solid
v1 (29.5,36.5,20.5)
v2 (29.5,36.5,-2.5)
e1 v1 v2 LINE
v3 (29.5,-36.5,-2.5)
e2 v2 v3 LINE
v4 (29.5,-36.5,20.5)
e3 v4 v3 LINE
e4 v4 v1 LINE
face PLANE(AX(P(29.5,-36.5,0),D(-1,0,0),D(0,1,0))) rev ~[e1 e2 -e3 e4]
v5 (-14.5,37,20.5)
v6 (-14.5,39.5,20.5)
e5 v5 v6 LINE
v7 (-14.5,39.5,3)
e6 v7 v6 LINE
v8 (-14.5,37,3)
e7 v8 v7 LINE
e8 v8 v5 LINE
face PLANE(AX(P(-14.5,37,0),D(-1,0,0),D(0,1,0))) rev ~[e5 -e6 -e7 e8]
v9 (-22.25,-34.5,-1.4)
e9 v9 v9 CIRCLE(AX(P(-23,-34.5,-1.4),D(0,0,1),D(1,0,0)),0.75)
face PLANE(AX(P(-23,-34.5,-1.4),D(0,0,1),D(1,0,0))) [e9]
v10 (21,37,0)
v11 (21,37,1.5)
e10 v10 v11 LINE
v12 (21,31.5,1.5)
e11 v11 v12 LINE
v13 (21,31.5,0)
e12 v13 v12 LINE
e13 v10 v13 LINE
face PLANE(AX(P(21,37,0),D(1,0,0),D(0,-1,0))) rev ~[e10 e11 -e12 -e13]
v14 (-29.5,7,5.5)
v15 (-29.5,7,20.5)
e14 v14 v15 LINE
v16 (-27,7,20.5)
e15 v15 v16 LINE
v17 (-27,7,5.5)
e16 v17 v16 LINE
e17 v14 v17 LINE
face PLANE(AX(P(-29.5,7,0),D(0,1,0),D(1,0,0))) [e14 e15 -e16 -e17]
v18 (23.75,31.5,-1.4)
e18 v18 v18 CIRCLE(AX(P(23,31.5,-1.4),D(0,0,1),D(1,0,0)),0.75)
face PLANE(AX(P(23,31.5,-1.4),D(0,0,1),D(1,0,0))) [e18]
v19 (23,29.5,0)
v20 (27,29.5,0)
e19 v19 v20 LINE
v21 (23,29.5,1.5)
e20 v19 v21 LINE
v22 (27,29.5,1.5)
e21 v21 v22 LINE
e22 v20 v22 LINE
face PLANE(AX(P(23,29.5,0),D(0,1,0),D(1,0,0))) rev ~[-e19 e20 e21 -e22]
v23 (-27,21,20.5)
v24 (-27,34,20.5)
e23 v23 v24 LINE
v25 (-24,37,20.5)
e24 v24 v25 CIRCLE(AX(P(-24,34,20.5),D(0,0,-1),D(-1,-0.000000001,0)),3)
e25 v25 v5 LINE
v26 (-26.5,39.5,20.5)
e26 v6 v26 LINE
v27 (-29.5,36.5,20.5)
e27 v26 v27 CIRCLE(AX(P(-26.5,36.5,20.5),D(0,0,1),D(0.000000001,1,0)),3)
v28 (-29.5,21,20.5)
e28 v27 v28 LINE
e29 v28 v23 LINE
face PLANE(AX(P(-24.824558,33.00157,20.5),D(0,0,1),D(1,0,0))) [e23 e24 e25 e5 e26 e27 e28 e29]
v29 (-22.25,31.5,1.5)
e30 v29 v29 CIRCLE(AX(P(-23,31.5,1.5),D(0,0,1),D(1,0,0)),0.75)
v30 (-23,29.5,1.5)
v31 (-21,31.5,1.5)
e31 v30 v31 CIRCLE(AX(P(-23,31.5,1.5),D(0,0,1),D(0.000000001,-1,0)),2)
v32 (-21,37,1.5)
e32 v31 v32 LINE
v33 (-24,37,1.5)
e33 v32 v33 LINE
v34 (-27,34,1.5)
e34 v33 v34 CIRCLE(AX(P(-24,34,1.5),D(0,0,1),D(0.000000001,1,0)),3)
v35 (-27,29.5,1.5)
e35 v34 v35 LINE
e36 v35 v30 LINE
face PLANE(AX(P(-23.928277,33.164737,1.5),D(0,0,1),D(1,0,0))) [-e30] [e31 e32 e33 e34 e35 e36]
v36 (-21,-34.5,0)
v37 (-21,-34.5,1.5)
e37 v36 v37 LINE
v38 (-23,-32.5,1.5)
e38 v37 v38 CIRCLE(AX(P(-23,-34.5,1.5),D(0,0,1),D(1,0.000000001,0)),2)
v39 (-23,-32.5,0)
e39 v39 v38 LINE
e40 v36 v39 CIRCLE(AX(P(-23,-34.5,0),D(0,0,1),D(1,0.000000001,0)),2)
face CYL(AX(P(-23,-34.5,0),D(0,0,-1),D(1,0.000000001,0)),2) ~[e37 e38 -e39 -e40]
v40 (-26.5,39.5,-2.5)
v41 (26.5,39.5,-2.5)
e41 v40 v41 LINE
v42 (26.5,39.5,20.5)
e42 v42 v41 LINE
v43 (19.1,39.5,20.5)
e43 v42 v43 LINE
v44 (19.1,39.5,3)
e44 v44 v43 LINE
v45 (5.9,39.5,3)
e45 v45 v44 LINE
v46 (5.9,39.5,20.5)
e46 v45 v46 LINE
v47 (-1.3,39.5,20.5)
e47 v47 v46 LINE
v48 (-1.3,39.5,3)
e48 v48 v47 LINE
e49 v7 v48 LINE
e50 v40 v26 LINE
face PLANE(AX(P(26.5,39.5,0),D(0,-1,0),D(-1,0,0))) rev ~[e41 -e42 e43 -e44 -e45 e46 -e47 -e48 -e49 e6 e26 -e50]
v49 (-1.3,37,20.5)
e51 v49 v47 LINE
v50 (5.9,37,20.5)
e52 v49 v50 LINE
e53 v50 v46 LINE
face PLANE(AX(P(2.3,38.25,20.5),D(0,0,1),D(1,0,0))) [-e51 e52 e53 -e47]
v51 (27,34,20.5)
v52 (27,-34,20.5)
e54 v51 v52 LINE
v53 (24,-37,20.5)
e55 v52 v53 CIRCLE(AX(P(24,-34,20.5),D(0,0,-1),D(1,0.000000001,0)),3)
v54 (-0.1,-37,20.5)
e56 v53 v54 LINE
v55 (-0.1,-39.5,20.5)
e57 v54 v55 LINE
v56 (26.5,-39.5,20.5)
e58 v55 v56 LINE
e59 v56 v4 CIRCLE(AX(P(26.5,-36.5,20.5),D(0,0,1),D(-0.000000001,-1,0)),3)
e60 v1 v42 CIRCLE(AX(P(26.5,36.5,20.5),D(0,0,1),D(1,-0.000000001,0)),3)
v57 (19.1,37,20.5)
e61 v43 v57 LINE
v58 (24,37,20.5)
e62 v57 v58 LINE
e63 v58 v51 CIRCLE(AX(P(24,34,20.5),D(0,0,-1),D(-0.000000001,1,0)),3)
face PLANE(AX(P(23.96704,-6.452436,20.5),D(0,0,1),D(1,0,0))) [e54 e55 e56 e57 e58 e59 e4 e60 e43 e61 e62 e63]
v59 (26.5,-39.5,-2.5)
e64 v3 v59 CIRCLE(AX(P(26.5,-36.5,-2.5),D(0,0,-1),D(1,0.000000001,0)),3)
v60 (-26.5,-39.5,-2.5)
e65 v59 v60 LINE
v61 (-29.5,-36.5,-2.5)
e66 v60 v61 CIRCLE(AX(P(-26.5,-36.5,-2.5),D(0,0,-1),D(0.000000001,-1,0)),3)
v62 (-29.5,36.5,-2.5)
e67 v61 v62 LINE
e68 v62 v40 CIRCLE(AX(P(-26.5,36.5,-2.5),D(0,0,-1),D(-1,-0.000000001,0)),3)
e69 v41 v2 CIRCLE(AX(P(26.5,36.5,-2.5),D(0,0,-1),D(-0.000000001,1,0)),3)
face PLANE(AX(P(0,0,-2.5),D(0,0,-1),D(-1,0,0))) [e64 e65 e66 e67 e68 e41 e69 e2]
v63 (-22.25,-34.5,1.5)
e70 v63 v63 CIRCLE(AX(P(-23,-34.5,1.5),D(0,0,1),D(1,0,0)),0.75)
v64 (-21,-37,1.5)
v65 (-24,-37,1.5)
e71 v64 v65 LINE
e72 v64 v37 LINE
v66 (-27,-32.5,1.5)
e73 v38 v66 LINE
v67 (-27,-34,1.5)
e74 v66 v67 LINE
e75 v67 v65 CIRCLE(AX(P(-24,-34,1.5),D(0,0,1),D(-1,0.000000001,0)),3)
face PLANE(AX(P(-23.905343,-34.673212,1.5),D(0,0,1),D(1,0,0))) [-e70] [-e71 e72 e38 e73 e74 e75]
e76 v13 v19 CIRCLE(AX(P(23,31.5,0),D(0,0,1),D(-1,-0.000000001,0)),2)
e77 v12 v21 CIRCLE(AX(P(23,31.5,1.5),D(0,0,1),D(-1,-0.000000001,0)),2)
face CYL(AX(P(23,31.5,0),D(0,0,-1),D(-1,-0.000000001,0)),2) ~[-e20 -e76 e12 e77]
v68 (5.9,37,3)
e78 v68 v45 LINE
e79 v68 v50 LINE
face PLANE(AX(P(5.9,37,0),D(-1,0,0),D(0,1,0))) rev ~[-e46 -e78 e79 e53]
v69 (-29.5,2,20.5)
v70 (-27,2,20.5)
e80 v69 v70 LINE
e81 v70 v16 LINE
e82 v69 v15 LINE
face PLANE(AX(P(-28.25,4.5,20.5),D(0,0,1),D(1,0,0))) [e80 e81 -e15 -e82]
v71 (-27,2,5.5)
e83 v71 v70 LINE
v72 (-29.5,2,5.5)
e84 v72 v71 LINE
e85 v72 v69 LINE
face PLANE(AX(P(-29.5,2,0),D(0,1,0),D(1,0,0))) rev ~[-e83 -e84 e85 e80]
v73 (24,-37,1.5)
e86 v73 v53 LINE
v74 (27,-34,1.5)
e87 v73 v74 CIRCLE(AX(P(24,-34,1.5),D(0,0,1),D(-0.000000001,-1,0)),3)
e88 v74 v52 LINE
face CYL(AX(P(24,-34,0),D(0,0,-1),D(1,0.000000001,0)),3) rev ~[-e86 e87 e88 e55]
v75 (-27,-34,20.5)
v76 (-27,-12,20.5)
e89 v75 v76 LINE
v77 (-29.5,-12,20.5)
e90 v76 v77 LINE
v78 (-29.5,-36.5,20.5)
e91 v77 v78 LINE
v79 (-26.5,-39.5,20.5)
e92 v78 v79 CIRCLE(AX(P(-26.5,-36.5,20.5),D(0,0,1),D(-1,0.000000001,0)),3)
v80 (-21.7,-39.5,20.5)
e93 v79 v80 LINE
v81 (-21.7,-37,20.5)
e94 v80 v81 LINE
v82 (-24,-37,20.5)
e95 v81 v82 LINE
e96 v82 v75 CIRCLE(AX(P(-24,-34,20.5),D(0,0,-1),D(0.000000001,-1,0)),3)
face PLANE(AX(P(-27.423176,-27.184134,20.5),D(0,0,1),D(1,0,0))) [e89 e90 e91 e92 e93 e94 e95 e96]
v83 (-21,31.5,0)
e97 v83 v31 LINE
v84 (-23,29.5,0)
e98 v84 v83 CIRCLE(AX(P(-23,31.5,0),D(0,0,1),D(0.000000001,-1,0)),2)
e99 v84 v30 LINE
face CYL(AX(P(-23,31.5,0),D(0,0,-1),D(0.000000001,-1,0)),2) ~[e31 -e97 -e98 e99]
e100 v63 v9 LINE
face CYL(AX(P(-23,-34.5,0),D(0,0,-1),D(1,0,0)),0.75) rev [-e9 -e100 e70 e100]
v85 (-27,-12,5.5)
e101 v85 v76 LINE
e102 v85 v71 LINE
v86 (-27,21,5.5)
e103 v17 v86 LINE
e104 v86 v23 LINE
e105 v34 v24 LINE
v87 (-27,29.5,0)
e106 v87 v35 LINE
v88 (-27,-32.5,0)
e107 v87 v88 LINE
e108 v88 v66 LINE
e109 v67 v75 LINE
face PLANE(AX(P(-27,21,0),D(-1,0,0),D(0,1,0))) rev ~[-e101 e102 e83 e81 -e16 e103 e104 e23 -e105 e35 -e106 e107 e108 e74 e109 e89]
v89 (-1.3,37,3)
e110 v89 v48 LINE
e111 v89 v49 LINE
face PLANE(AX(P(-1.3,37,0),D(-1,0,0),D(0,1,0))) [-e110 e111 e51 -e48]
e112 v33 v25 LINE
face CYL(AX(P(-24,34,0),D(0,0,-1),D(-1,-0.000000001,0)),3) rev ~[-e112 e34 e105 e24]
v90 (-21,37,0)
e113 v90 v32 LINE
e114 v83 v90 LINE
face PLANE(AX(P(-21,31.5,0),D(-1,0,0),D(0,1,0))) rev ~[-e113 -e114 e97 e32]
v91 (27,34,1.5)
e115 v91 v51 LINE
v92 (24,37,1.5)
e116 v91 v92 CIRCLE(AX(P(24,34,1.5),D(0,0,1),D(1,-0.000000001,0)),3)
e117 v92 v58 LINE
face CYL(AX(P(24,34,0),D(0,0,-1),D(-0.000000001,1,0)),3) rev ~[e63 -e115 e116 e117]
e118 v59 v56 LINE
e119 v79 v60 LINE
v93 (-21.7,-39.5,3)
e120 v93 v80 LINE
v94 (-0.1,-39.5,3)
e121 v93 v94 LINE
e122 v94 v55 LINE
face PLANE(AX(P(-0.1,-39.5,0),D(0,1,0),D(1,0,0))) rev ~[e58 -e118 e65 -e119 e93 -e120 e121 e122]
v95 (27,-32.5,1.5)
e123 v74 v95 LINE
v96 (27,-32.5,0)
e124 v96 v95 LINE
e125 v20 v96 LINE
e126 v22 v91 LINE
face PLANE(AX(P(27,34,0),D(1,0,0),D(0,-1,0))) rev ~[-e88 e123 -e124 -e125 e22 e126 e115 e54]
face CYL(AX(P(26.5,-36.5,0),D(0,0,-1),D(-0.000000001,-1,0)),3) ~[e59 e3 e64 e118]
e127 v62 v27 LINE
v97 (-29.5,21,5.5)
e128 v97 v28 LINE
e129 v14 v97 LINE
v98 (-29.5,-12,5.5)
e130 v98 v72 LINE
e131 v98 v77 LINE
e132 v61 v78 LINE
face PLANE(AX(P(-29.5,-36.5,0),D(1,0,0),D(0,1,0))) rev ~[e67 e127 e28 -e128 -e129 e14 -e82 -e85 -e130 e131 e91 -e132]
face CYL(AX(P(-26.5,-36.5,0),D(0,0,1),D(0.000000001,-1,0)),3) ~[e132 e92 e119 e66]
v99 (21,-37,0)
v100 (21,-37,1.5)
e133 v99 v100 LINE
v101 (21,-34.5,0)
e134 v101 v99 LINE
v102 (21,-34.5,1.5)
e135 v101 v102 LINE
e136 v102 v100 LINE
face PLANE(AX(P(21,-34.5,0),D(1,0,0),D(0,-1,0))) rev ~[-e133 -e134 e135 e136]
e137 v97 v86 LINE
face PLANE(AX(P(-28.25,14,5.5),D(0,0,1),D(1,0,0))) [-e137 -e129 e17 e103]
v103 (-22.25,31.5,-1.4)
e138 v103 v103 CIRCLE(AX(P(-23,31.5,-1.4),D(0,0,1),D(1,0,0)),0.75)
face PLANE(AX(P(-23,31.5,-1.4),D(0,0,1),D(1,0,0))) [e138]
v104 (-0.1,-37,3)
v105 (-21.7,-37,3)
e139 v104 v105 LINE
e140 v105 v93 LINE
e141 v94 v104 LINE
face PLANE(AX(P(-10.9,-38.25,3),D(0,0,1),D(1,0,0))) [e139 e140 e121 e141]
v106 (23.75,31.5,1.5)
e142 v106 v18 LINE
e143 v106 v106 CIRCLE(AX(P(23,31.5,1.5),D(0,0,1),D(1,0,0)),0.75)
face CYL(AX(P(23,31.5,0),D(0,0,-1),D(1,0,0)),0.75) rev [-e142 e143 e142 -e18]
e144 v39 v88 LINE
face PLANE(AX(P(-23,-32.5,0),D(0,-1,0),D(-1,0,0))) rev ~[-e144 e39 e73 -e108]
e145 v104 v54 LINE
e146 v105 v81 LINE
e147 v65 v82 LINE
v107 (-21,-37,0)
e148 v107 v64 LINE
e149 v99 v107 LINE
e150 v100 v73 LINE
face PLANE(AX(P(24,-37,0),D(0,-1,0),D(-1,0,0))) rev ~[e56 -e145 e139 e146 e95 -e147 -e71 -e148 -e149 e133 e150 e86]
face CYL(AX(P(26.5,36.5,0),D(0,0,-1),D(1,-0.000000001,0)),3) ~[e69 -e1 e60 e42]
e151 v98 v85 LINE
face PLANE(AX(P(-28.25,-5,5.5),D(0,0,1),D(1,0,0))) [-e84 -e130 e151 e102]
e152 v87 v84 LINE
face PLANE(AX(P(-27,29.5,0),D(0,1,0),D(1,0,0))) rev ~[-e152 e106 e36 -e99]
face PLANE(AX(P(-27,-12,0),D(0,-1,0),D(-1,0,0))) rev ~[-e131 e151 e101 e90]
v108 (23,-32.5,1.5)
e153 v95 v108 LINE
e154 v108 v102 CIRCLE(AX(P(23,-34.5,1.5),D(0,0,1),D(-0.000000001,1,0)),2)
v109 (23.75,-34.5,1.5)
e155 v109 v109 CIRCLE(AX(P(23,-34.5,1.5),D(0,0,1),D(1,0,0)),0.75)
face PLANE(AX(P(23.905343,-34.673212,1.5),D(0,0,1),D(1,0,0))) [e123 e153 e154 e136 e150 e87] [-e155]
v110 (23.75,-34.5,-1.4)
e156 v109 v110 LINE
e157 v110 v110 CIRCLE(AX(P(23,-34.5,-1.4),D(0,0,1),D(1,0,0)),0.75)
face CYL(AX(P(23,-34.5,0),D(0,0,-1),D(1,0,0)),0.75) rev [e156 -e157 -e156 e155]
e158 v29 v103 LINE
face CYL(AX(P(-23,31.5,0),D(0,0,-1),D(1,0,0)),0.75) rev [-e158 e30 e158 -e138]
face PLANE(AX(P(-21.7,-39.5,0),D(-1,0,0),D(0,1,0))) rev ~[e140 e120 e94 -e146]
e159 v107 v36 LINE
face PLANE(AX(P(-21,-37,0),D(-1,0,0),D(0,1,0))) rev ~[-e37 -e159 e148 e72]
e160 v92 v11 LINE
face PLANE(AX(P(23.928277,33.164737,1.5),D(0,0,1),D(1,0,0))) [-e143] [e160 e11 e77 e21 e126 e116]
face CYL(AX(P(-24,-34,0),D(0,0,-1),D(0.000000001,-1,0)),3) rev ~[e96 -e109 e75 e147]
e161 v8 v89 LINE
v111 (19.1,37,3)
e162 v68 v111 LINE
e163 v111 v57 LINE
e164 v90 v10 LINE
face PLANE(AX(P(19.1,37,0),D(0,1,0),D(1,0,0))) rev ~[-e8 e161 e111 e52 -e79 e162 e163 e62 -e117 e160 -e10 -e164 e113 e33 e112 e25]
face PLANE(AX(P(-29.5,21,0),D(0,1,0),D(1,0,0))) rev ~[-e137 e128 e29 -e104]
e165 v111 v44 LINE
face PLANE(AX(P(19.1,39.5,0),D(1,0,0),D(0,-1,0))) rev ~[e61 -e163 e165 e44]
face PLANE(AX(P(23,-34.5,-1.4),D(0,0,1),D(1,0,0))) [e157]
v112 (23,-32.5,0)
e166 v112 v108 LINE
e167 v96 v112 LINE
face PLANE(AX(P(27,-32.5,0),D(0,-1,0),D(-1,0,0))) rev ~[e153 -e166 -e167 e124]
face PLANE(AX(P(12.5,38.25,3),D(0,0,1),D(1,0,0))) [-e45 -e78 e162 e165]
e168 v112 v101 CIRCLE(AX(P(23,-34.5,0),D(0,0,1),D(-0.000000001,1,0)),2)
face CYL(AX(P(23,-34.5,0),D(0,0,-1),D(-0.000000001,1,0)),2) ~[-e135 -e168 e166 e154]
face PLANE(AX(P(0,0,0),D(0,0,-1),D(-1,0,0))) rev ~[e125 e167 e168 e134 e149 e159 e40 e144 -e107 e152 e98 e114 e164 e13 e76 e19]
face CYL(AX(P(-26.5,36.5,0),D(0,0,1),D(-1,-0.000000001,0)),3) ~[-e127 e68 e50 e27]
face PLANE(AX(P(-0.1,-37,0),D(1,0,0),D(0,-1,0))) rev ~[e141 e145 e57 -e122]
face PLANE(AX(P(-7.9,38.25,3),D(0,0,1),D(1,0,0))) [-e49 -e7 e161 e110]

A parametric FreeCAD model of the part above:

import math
import FreeCAD as App
import Part
import Sketcher
from FreeCAD import Vector
Q = App.Units.Quantity

doc = App.newDocument("Part")
body = doc.addObject("PartDesign::Body", "Body")

# Sketch on XY plane
sketch1 = body.newObject("Sketcher::SketchObject", "Sketch")
sketch1.AttachmentSupport = (doc.getObject("XY_Plane"), [""])
sketch1.MapMode = "FlatFace"
sketch1.addGeometry(Part.LineSegment(Vector(26.5, 39.5, 0), Vector(-26.5, 39.5, 0)), False)
sketch1.addGeometry(Part.ArcOfCircle(Part.Circle(Vector(-26.5, 36.5, 0), Vector(0, 0, 1), 3), math.radians(90), math.radians(180)), False)
sketch1.addGeometry(Part.LineSegment(Vector(-29.5, 36.5, 0), Vector(-29.5, -36.5, 0)), False)
sketch1.addGeometry(Part.ArcOfCircle(Part.Circle(Vector(-26.5, -36.5, 0), Vector(0, 0, 1), 3), math.radians(180), math.radians(270)), False)
sketch1.addGeometry(Part.LineSegment(Vector(-26.5, -39.5, 0), Vector(26.5, -39.5, 0)), False)
sketch1.addGeometry(Part.ArcOfCircle(Part.Circle(Vector(26.5, -36.5, 0), Vector(0, 0, 1), 3), math.radians(-90), math.radians(0)), False)
sketch1.addGeometry(Part.LineSegment(Vector(29.5, -36.5, 0), Vector(29.5, 36.5, 0)), False)
sketch1.addGeometry(Part.ArcOfCircle(Part.Circle(Vector(26.5, 36.5, 0), Vector(0, 0, 1), 3), math.radians(0), math.radians(90)), False)
sketch1.addConstraint(Sketcher.Constraint("Tangent", 0, 2, 1, 1))
sketch1.addConstraint(Sketcher.Constraint("Tangent", 1, 2, 2, 1))
sketch1.addConstraint(Sketcher.Constraint("Tangent", 2, 2, 3, 1))
sketch1.addConstraint(Sketcher.Constraint("Tangent", 3, 2, 4, 1))
sketch1.addConstraint(Sketcher.Constraint("Tangent", 4, 2, 5, 1))
sketch1.addConstraint(Sketcher.Constraint("Tangent", 5, 2, 6, 1))
sketch1.addConstraint(Sketcher.Constraint("Tangent", 6, 2, 7, 1))
sketch1.addConstraint(Sketcher.Constraint("Tangent", 7, 2, 0, 1))
sketch1.addConstraint(Sketcher.Constraint("Horizontal", 0))
sketch1.addConstraint(Sketcher.Constraint("Vertical", 2))
sketch1.addConstraint(Sketcher.Constraint("Horizontal", 4))
sketch1.addConstraint(Sketcher.Constraint("Vertical", 6))
sketch1.addConstraint(Sketcher.Constraint("Equal", 1, 3))
sketch1.addConstraint(Sketcher.Constraint("Equal", 3, 5))
sketch1.addConstraint(Sketcher.Constraint("Equal", 5, 7))
sketch1.addConstraint(Sketcher.Constraint("Symmetric", 1, 3, 5, 3, -1, 1))
sketch1.addConstraint(Sketcher.Constraint("Radius", 1, Q("3 mm")))
sketch1.addConstraint(Sketcher.Constraint("DistanceX", 0, 2, 0, 1, Q("53 mm")))
sketch1.addConstraint(Sketcher.Constraint("DistanceY", 2, 2, 2, 1, Q("73 mm")))
pad1 = body.newObject("PartDesign::Pad", "Pad")
pad1.Profile = sketch1
pad1.Length = 2.5
pad1.Reversed = True

# Sketch on XY plane
sketch2 = body.newObject("Sketcher::SketchObject", "Sketch001")
sketch2.AttachmentSupport = (doc.getObject("XY_Plane"), [""])
sketch2.MapMode = "FlatFace"
sketch2.addGeometry(Part.LineSegment(Vector(-21, 31.5, 0), Vector(-21, 37, 0)), False)
sketch2.addGeometry(Part.LineSegment(Vector(-21, 37, 0), Vector(-24, 37, 0)), False)
sketch2.addGeometry(Part.ArcOfCircle(Part.Circle(Vector(-24, 34, 0), Vector(0, 0, 1), 3), math.radians(90), math.radians(180)), False)
sketch2.addGeometry(Part.LineSegment(Vector(-27, 34, 0), Vector(-27, 29.5, 0)), False)
sketch2.addGeometry(Part.LineSegment(Vector(-27, 29.5, 0), Vector(-23, 29.5, 0)), False)
sketch2.addGeometry(Part.ArcOfCircle(Part.Circle(Vector(-23, 31.5, 0), Vector(0, 0, 1), 2), math.radians(-90), math.radians(0)), False)
sketch2.addGeometry(Part.Circle(Vector(-23, 31.5, 0), Vector(0, 0, 1), 0.75), False)
sketch2.addGeometry(Part.LineSegment(Vector(27, -34, 0), Vector(27, -32.5, 0)), False)
sketch2.addGeometry(Part.LineSegment(Vector(27, -32.5, 0), Vector(23, -32.5, 0)), False)
sketch2.addGeometry(Part.ArcOfCircle(Part.Circle(Vector(23, -34.5, 0), Vector(0, 0, 1), 2), math.radians(90), math.radians(180)), False)
sketch2.addGeometry(Part.LineSegment(Vector(21, -34.5, 0), Vector(21, -37, 0)), False)
sketch2.addGeometry(Part.LineSegment(Vector(21, -37, 0), Vector(24, -37, 0)), False)
sketch2.addGeometry(Part.ArcOfCircle(Part.Circle(Vector(24, -34, 0), Vector(0, 0, 1), 3), math.radians(-90), math.radians(0)), False)
sketch2.addGeometry(Part.Circle(Vector(23, -34.5, 0), Vector(0, 0, 1), 0.75), False)
sketch2.addGeometry(Part.LineSegment(Vector(-23, -32.5, 0), Vector(-27, -32.5, 0)), False)
sketch2.addGeometry(Part.LineSegment(Vector(-27, -32.5, 0), Vector(-27, -34, 0)), False)
sketch2.addGeometry(Part.ArcOfCircle(Part.Circle(Vector(-24, -34, 0), Vector(0, 0, 1), 3), math.radians(180), math.radians(270)), False)
sketch2.addGeometry(Part.LineSegment(Vector(-24, -37, 0), Vector(-21, -37, 0)), False)
sketch2.addGeometry(Part.LineSegment(Vector(-21, -37, 0), Vector(-21, -34.5, 0)), False)
sketch2.addGeometry(Part.ArcOfCircle(Part.Circle(Vector(-23, -34.5, 0), Vector(0, 0, 1), 2), math.radians(0), math.radians(90)), False)
sketch2.addGeometry(Part.Circle(Vector(-23, -34.5, 0), Vector(0, 0, 1), 0.75), False)
sketch2.addGeometry(Part.LineSegment(Vector(24, 37, 0), Vector(21, 37, 0)), False)
sketch2.addGeometry(Part.LineSegment(Vector(21, 37, 0), Vector(21, 31.5, 0)), False)
sketch2.addGeometry(Part.ArcOfCircle(Part.Circle(Vector(23, 31.5, 0), Vector(0, 0, 1), 2), math.radians(-180), math.radians(-90)), False)
sketch2.addGeometry(Part.LineSegment(Vector(23, 29.5, 0), Vector(27, 29.5, 0)), False)
sketch2.addGeometry(Part.LineSegment(Vector(27, 29.5, 0), Vector(27, 34, 0)), False)
sketch2.addGeometry(Part.ArcOfCircle(Part.Circle(Vector(24, 34, 0), Vector(0, 0, 1), 3), math.radians(0), math.radians(90)), False)
sketch2.addGeometry(Part.Circle(Vector(23, 31.5, 0), Vector(0, 0, 1), 0.75), False)
sketch2.addConstraint(Sketcher.Constraint("Coincident", 0, 2, 1, 1))
sketch2.addConstraint(Sketcher.Constraint("Tangent", 1, 2, 2, 1))
sketch2.addConstraint(Sketcher.Constraint("Tangent", 2, 2, 3, 1))
sketch2.addConstraint(Sketcher.Constraint("Coincident", 3, 2, 4, 1))
sketch2.addConstraint(Sketcher.Constraint("Tangent", 4, 2, 5, 1))
sketch2.addConstraint(Sketcher.Constraint("Tangent", 5, 2, 0, 1))
sketch2.addConstraint(Sketcher.Constraint("Coincident", 7, 2, 8, 1))
sketch2.addConstraint(Sketcher.Constraint("Tangent", 8, 2, 9, 1))
sketch2.addConstraint(Sketcher.Constraint("Tangent", 9, 2, 10, 1))
sketch2.addConstraint(Sketcher.Constraint("Coincident", 10, 2, 11, 1))
sketch2.addConstraint(Sketcher.Constraint("Tangent", 11, 2, 12, 1))
sketch2.addConstraint(Sketcher.Constraint("Tangent", 12, 2, 7, 1))
sketch2.addConstraint(Sketcher.Constraint("Coincident", 14, 2, 15, 1))
sketch2.addConstraint(Sketcher.Constraint("Tangent", 15, 2, 16, 1))
sketch2.addConstraint(Sketcher.Constraint("Tangent", 16, 2, 17, 1))
sketch2.addConstraint(Sketcher.Constraint("Coincident", 17, 2, 18, 1))
sketch2.addConstraint(Sketcher.Constraint("Tangent", 18, 2, 19, 1))
sketch2.addConstraint(Sketcher.Constraint("Tangent", 19, 2, 14, 1))
sketch2.addConstraint(Sketcher.Constraint("Coincident", 21, 2, 22, 1))
sketch2.addConstraint(Sketcher.Constraint("Tangent", 22, 2, 23, 1))
sketch2.addConstraint(Sketcher.Constraint("Tangent", 23, 2, 24, 1))
sketch2.addConstraint(Sketcher.Constraint("Coincident", 24, 2, 25, 1))
sketch2.addConstraint(Sketcher.Constraint("Tangent", 25, 2, 26, 1))
sketch2.addConstraint(Sketcher.Constraint("Tangent", 26, 2, 21, 1))
sketch2.addConstraint(Sketcher.Constraint("Vertical", 0))
sketch2.addConstraint(Sketcher.Constraint("Horizontal", 1))
sketch2.addConstraint(Sketcher.Constraint("Vertical", 3))
sketch2.addConstraint(Sketcher.Constraint("Horizontal", 4))
sketch2.addConstraint(Sketcher.Constraint("Vertical", 7))
sketch2.addConstraint(Sketcher.Constraint("Horizontal", 8))
sketch2.addConstraint(Sketcher.Constraint("Vertical", 10))
sketch2.addConstraint(Sketcher.Constraint("Horizontal", 11))
sketch2.addConstraint(Sketcher.Constraint("Horizontal", 14))
sketch2.addConstraint(Sketcher.Constraint("Vertical", 15))
sketch2.addConstraint(Sketcher.Constraint("Horizontal", 17))
sketch2.addConstraint(Sketcher.Constraint("Vertical", 18))
sketch2.addConstraint(Sketcher.Constraint("Horizontal", 21))
sketch2.addConstraint(Sketcher.Constraint("Vertical", 22))
sketch2.addConstraint(Sketcher.Constraint("Horizontal", 24))
sketch2.addConstraint(Sketcher.Constraint("Vertical", 25))
sketch2.addConstraint(Sketcher.Constraint("Coincident", 6, 3, 5, 3))
sketch2.addConstraint(Sketcher.Constraint("Coincident", 13, 3, 9, 3))
sketch2.addConstraint(Sketcher.Constraint("Coincident", 20, 3, 19, 3))
sketch2.addConstraint(Sketcher.Constraint("Coincident", 27, 3, 23, 3))
sketch2.addConstraint(Sketcher.Constraint("Equal", 5, 9))
sketch2.addConstraint(Sketcher.Constraint("Equal", 2, 12))
sketch2.addConstraint(Sketcher.Constraint("Equal", 6, 13))
sketch2.addConstraint(Sketcher.Constraint("Equal", 12, 16))
sketch2.addConstraint(Sketcher.Constraint("Equal", 9, 19))
sketch2.addConstraint(Sketcher.Constraint("Equal", 13, 20))
sketch2.addConstraint(Sketcher.Constraint("Equal", 19, 23))
sketch2.addConstraint(Sketcher.Constraint("Equal", 16, 26))
sketch2.addConstraint(Sketcher.Constraint("Equal", 20, 27))
sketch2.addConstraint(Sketcher.Constraint("Symmetric", 2, 3, 12, 3, -1, 1))
sketch2.addConstraint(Sketcher.Constraint("Symmetric", 16, 3, 26, 3, -1, 1))
sketch2.addConstraint(Sketcher.Constraint("Symmetric", 12, 3, 16, 3, -2))
sketch2.addConstraint(Sketcher.Constraint("Symmetric", 9, 3, 19, 3, -2))
sketch2.addConstraint(Sketcher.Constraint("Symmetric", 5, 3, 23, 3, -2))
sketch2.addConstraint(Sketcher.Constraint("Vertical", 6, 3, 19, 3))
sketch2.addConstraint(Sketcher.Constraint("Radius", 2, Q("3 mm")))
sketch2.addConstraint(Sketcher.Constraint("Radius", 5, Q("2 mm")))
sketch2.addConstraint(Sketcher.Constraint("Diameter", 6, Q("1.5 mm")))
sketch2.addConstraint(Sketcher.Constraint("DistanceX", 1, 2, 1, 1, Q("3 mm")))
sketch2.addConstraint(Sketcher.Constraint("DistanceY", 0, 1, 0, 2, Q("5.5 mm")))
sketch2.addConstraint(Sketcher.Constraint("DistanceY", 7, 1, 7, 2, Q("1.5 mm")))
sketch2.addConstraint(Sketcher.Constraint("DistanceX", 2, 3, -1, 1, Q("24 mm")))
sketch2.addConstraint(Sketcher.Constraint("DistanceY", -1, 1, 2, 3, Q("34 mm")))
pad2 = body.newObject("PartDesign::Pad", "Pad001")
pad2.Profile = sketch2
pad2.Length = 1.5

# Sketch on XY plane
sketch3 = body.newObject("Sketcher::SketchObject", "Sketch002")
sketch3.AttachmentSupport = (doc.getObject("XY_Plane"), [""])
sketch3.MapMode = "FlatFace"
sketch3.addGeometry(Part.LineSegment(Vector(-14.5, 39.5, 0), Vector(-14.5, 37, 0)), False)
sketch3.addGeometry(Part.LineSegment(Vector(-14.5, 37, 0), Vector(-1.3, 37, 0)), False)
sketch3.addGeometry(Part.LineSegment(Vector(-1.3, 37, 0), Vector(-1.3, 39.5, 0)), False)
sketch3.addGeometry(Part.LineSegment(Vector(-1.3, 39.5, 0), Vector(-14.5, 39.5, 0)), False)
sketch3.addGeometry(Part.LineSegment(Vector(5.9, 39.5, 0), Vector(5.9, 37, 0)), False)
sketch3.addGeometry(Part.LineSegment(Vector(5.9, 37, 0), Vector(19.1, 37, 0)), False)
sketch3.addGeometry(Part.LineSegment(Vector(19.1, 37, 0), Vector(19.1, 39.5, 0)), False)
sketch3.addGeometry(Part.LineSegment(Vector(19.1, 39.5, 0), Vector(5.9, 39.5, 0)), False)
sketch3.addGeometry(Part.LineSegment(Vector(-21.7, -37, 0), Vector(-21.7, -39.5, 0)), False)
sketch3.addGeometry(Part.LineSegment(Vector(-21.7, -39.5, 0), Vector(-0.1, -39.5, 0)), False)
sketch3.addGeometry(Part.LineSegment(Vector(-0.1, -39.5, 0), Vector(-0.1, -37, 0)), False)
sketch3.addGeometry(Part.LineSegment(Vector(-0.1, -37, 0), Vector(-21.7, -37, 0)), False)
sketch3.addConstraint(Sketcher.Constraint("Coincident", 0, 2, 1, 1))
sketch3.addConstraint(Sketcher.Constraint("Coincident", 1, 2, 2, 1))
sketch3.addConstraint(Sketcher.Constraint("Coincident", 2, 2, 3, 1))
sketch3.addConstraint(Sketcher.Constraint("Coincident", 3, 2, 0, 1))
sketch3.addConstraint(Sketcher.Constraint("Coincident", 4, 2, 5, 1))
sketch3.addConstraint(Sketcher.Constraint("Coincident", 5, 2, 6, 1))
sketch3.addConstraint(Sketcher.Constraint("Coincident", 6, 2, 7, 1))
sketch3.addConstraint(Sketcher.Constraint("Coincident", 7, 2, 4, 1))
sketch3.addConstraint(Sketcher.Constraint("Coincident", 8, 2, 9, 1))
sketch3.addConstraint(Sketcher.Constraint("Coincident", 9, 2, 10, 1))
sketch3.addConstraint(Sketcher.Constraint("Coincident", 10, 2, 11, 1))
sketch3.addConstraint(Sketcher.Constraint("Coincident", 11, 2, 8, 1))
sketch3.addConstraint(Sketcher.Constraint("Vertical", 0))
sketch3.addConstraint(Sketcher.Constraint("Horizontal", 1))
sketch3.addConstraint(Sketcher.Constraint("Vertical", 2))
sketch3.addConstraint(Sketcher.Constraint("Horizontal", 3))
sketch3.addConstraint(Sketcher.Constraint("Vertical", 4))
sketch3.addConstraint(Sketcher.Constraint("Horizontal", 5))
sketch3.addConstraint(Sketcher.Constraint("Vertical", 6))
sketch3.addConstraint(Sketcher.Constraint("Horizontal", 7))
sketch3.addConstraint(Sketcher.Constraint("Vertical", 8))
sketch3.addConstraint(Sketcher.Constraint("Horizontal", 9))
sketch3.addConstraint(Sketcher.Constraint("Vertical", 10))
sketch3.addConstraint(Sketcher.Constraint("Horizontal", 11))
sketch3.addConstraint(Sketcher.Constraint("Horizontal", 1, 2, 4, 2))
sketch3.addConstraint(Sketcher.Constraint("Horizontal", 3, 2, 6, 2))
sketch3.addConstraint(Sketcher.Constraint("Equal", 3, 5))
sketch3.addConstraint(Sketcher.Constraint("Equal", 6, 8))
sketch3.addConstraint(Sketcher.Constraint("DistanceX", 1, 1, 1, 2, Q("13.2 mm")))
sketch3.addConstraint(Sketcher.Constraint("DistanceX", 9, 1, 9, 2, Q("21.6 mm")))
sketch3.addConstraint(Sketcher.Constraint("DistanceY", 0, 2, 0, 1, Q("2.5 mm")))
sketch3.addConstraint(Sketcher.Constraint("DistanceY", -1, 1, 0, 2, Q("37 mm")))
sketch3.addConstraint(Sketcher.Constraint("DistanceY", 10, 2, -1, 1, Q("37 mm")))
sketch3.addConstraint(Sketcher.Constraint("DistanceX", 9, 2, 4, 2, Q("6 mm")))
sketch3.addConstraint(Sketcher.Constraint("DistanceX", 0, 2, -1, 1, Q("14.5 mm")))
sketch3.addConstraint(Sketcher.Constraint("DistanceX", -1, 1, 4, 2, Q("5.9 mm")))
pad3 = body.newObject("PartDesign::Pad", "Pad002")
pad3.Profile = sketch3
pad3.Length = 3

# Sketch on XY plane
sketch4 = body.newObject("Sketcher::SketchObject", "Sketch003")
sketch4.AttachmentSupport = (doc.getObject("XY_Plane"), [""])
sketch4.MapMode = "FlatFace"
sketch4.addGeometry(Part.LineSegment(Vector(-29.5, 21, 0), Vector(-29.5, 7, 0)), False)
sketch4.addGeometry(Part.LineSegment(Vector(-29.5, 7, 0), Vector(-27, 7, 0)), False)
sketch4.addGeometry(Part.LineSegment(Vector(-27, 7, 0), Vector(-27, 21, 0)), False)
sketch4.addGeometry(Part.LineSegment(Vector(-27, 21, 0), Vector(-29.5, 21, 0)), False)
sketch4.addGeometry(Part.LineSegment(Vector(-29.5, 2, 0), Vector(-29.5, -12, 0)), False)
sketch4.addGeometry(Part.LineSegment(Vector(-29.5, -12, 0), Vector(-27, -12, 0)), False)
sketch4.addGeometry(Part.LineSegment(Vector(-27, -12, 0), Vector(-27, 2, 0)), False)
sketch4.addGeometry(Part.LineSegment(Vector(-27, 2, 0), Vector(-29.5, 2, 0)), False)
sketch4.addConstraint(Sketcher.Constraint("Coincident", 0, 2, 1, 1))
sketch4.addConstraint(Sketcher.Constraint("Coincident", 1, 2, 2, 1))
sketch4.addConstraint(Sketcher.Constraint("Coincident", 2, 2, 3, 1))
sketch4.addConstraint(Sketcher.Constraint("Coincident", 3, 2, 0, 1))
sketch4.addConstraint(Sketcher.Constraint("Coincident", 4, 2, 5, 1))
sketch4.addConstraint(Sketcher.Constraint("Coincident", 5, 2, 6, 1))
sketch4.addConstraint(Sketcher.Constraint("Coincident", 6, 2, 7, 1))
sketch4.addConstraint(Sketcher.Constraint("Coincident", 7, 2, 4, 1))
sketch4.addConstraint(Sketcher.Constraint("Vertical", 0))
sketch4.addConstraint(Sketcher.Constraint("Horizontal", 1))
sketch4.addConstraint(Sketcher.Constraint("Vertical", 2))
sketch4.addConstraint(Sketcher.Constraint("Horizontal", 3))
sketch4.addConstraint(Sketcher.Constraint("Vertical", 4))
sketch4.addConstraint(Sketcher.Constraint("Horizontal", 5))
sketch4.addConstraint(Sketcher.Constraint("Vertical", 6))
sketch4.addConstraint(Sketcher.Constraint("Horizontal", 7))
sketch4.addConstraint(Sketcher.Constraint("Vertical", 3, 2, 4, 2))
sketch4.addConstraint(Sketcher.Constraint("Vertical", 2, 2, 5, 2))
sketch4.addConstraint(Sketcher.Constraint("Equal", 2, 4))
sketch4.addConstraint(Sketcher.Constraint("DistanceY", 0, 2, 0, 1, Q("14 mm")))
sketch4.addConstraint(Sketcher.Constraint("DistanceX", 1, 1, 1, 2, Q("2.5 mm")))
sketch4.addConstraint(Sketcher.Constraint("DistanceY", -1, 1, 0, 2, Q("7 mm")))
sketch4.addConstraint(Sketcher.Constraint("DistanceX", 1, 2, -1, 1, Q("27 mm")))
sketch4.addConstraint(Sketcher.Constraint("DistanceY", 4, 2, -1, 1, Q("12 mm")))
pad4 = body.newObject("PartDesign::Pad", "Pad003")
pad4.Profile = sketch4
pad4.Length = 5.5

# Sketch on XY plane
sketch5 = body.newObject("Sketcher::SketchObject", "Sketch004")
sketch5.AttachmentSupport = (doc.getObject("XY_Plane"), [""])
sketch5.MapMode = "FlatFace"
sketch5.addGeometry(Part.LineSegment(Vector(26.5, 39.5, 0), Vector(19.1, 39.5, 0)), False)
sketch5.addGeometry(Part.LineSegment(Vector(19.1, 39.5, 0), Vector(19.1, 37, 0)), False)
sketch5.addGeometry(Part.LineSegment(Vector(19.1, 37, 0), Vector(24, 37, 0)), False)
sketch5.addGeometry(Part.ArcOfCircle(Part.Circle(Vector(24, 34, 0), Vector(0, 0, 1), 3), math.radians(0), math.radians(90)), False)
sketch5.addGeometry(Part.LineSegment(Vector(27, 34, 0), Vector(27, -34, 0)), False)
sketch5.addGeometry(Part.ArcOfCircle(Part.Circle(Vector(24, -34, 0), Vector(0, 0, 1), 3), math.radians(-90), math.radians(0)), False)
sketch5.addGeometry(Part.LineSegment(Vector(24, -37, 0), Vector(-0.1, -37, 0)), False)
sketch5.addGeometry(Part.LineSegment(Vector(-0.1, -37, 0), Vector(-0.1, -39.5, 0)), False)
sketch5.addGeometry(Part.LineSegment(Vector(-0.1, -39.5, 0), Vector(26.5, -39.5, 0)), False)
sketch5.addGeometry(Part.ArcOfCircle(Part.Circle(Vector(26.5, -36.5, 0), Vector(0, 0, 1), 3), math.radians(-90), math.radians(0)), False)
sketch5.addGeometry(Part.LineSegment(Vector(29.5, -36.5, 0), Vector(29.5, 36.5, 0)), False)
sketch5.addGeometry(Part.ArcOfCircle(Part.Circle(Vector(26.5, 36.5, 0), Vector(0, 0, 1), 3), math.radians(0), math.radians(90)), False)
sketch5.addGeometry(Part.LineSegment(Vector(-1.3, 39.5, 0), Vector(-1.3, 37, 0)), False)
sketch5.addGeometry(Part.LineSegment(Vector(-1.3, 37, 0), Vector(5.9, 37, 0)), False)
sketch5.addGeometry(Part.LineSegment(Vector(5.9, 37, 0), Vector(5.9, 39.5, 0)), False)
sketch5.addGeometry(Part.LineSegment(Vector(5.9, 39.5, 0), Vector(-1.3, 39.5, 0)), False)
sketch5.addGeometry(Part.LineSegment(Vector(-14.5, 39.5, 0), Vector(-26.5, 39.5, 0)), False)
sketch5.addGeometry(Part.ArcOfCircle(Part.Circle(Vector(-26.5, 36.5, 0), Vector(0, 0, 1), 3), math.radians(90), math.radians(180)), False)
sketch5.addGeometry(Part.LineSegment(Vector(-29.5, 36.5, 0), Vector(-29.5, 21, 0)), False)
sketch5.addGeometry(Part.LineSegment(Vector(-29.5, 21, 0), Vector(-27, 21, 0)), False)
sketch5.addGeometry(Part.LineSegment(Vector(-27, 21, 0), Vector(-27, 34, 0)), False)
sketch5.addGeometry(Part.ArcOfCircle(Part.Circle(Vector(-24, 34, 0), Vector(0, 0, 1), 3), math.radians(90), math.radians(180)), False)
sketch5.addGeometry(Part.LineSegment(Vector(-24, 37, 0), Vector(-14.5, 37, 0)), False)
sketch5.addGeometry(Part.LineSegment(Vector(-14.5, 37, 0), Vector(-14.5, 39.5, 0)), False)
sketch5.addGeometry(Part.LineSegment(Vector(-29.5, 7, 0), Vector(-29.5, 2, 0)), False)
sketch5.addGeometry(Part.LineSegment(Vector(-29.5, 2, 0), Vector(-27, 2, 0)), False)
sketch5.addGeometry(Part.LineSegment(Vector(-27, 2, 0), Vector(-27, 7, 0)), False)
sketch5.addGeometry(Part.LineSegment(Vector(-27, 7, 0), Vector(-29.5, 7, 0)), False)
sketch5.addGeometry(Part.LineSegment(Vector(-27, -12, 0), Vector(-29.5, -12, 0)), False)
sketch5.addGeometry(Part.LineSegment(Vector(-29.5, -12, 0), Vector(-29.5, -36.5, 0)), False)
sketch5.addGeometry(Part.ArcOfCircle(Part.Circle(Vector(-26.5, -36.5, 0), Vector(0, 0, 1), 3), math.radians(180), math.radians(270)), False)
sketch5.addGeometry(Part.LineSegment(Vector(-26.5, -39.5, 0), Vector(-21.7, -39.5, 0)), False)
sketch5.addGeometry(Part.LineSegment(Vector(-21.7, -39.5, 0), Vector(-21.7, -37, 0)), False)
sketch5.addGeometry(Part.LineSegment(Vector(-21.7, -37, 0), Vector(-24, -37, 0)), False)
sketch5.addGeometry(Part.ArcOfCircle(Part.Circle(Vector(-24, -34, 0), Vector(0, 0, 1), 3), math.radians(180), math.radians(270)), False)
sketch5.addGeometry(Part.LineSegment(Vector(-27, -34, 0), Vector(-27, -12, 0)), False)
sketch5.addConstraint(Sketcher.Constraint("Coincident", 0, 2, 1, 1))
sketch5.addConstraint(Sketcher.Constraint("Coincident", 1, 2, 2, 1))
sketch5.addConstraint(Sketcher.Constraint("Tangent", 2, 2, 3, 2))
sketch5.addConstraint(Sketcher.Constraint("Tangent", 3, 1, 4, 1))
sketch5.addConstraint(Sketcher.Constraint("Tangent", 4, 2, 5, 2))
sketch5.addConstraint(Sketcher.Constraint("Tangent", 5, 1, 6, 1))
sketch5.addConstraint(Sketcher.Constraint("Coincident", 6, 2, 7, 1))
sketch5.addConstraint(Sketcher.Constraint("Coincident", 7, 2, 8, 1))
sketch5.addConstraint(Sketcher.Constraint("Tangent", 8, 2, 9, 1))
sketch5.addConstraint(Sketcher.Constraint("Tangent", 9, 2, 10, 1))
sketch5.addConstraint(Sketcher.Constraint("Tangent", 10, 2, 11, 1))
sketch5.addConstraint(Sketcher.Constraint("Tangent", 11, 2, 0, 1))
sketch5.addConstraint(Sketcher.Constraint("Coincident", 12, 2, 13, 1))
sketch5.addConstraint(Sketcher.Constraint("Coincident", 13, 2, 14, 1))
sketch5.addConstraint(Sketcher.Constraint("Coincident", 14, 2, 15, 1))
sketch5.addConstraint(Sketcher.Constraint("Coincident", 15, 2, 12, 1))
sketch5.addConstraint(Sketcher.Constraint("Tangent", 16, 2, 17, 1))
sketch5.addConstraint(Sketcher.Constraint("Tangent", 17, 2, 18, 1))
sketch5.addConstraint(Sketcher.Constraint("Coincident", 18, 2, 19, 1))
sketch5.addConstraint(Sketcher.Constraint("Coincident", 19, 2, 20, 1))
sketch5.addConstraint(Sketcher.Constraint("Tangent", 20, 2, 21, 2))
sketch5.addConstraint(Sketcher.Constraint("Tangent", 21, 1, 22, 1))
sketch5.addConstraint(Sketcher.Constraint("Coincident", 22, 2, 23, 1))
sketch5.addConstraint(Sketcher.Constraint("Coincident", 23, 2, 16, 1))
sketch5.addConstraint(Sketcher.Constraint("Coincident", 24, 2, 25, 1))
sketch5.addConstraint(Sketcher.Constraint("Coincident", 25, 2, 26, 1))
sketch5.addConstraint(Sketcher.Constraint("Coincident", 26, 2, 27, 1))
sketch5.addConstraint(Sketcher.Constraint("Coincident", 27, 2, 24, 1))
sketch5.addConstraint(Sketcher.Constraint("Coincident", 28, 2, 29, 1))
sketch5.addConstraint(Sketcher.Constraint("Tangent", 29, 2, 30, 1))
sketch5.addConstraint(Sketcher.Constraint("Tangent", 30, 2, 31, 1))
sketch5.addConstraint(Sketcher.Constraint("Coincident", 31, 2, 32, 1))
sketch5.addConstraint(Sketcher.Constraint("Coincident", 32, 2, 33, 1))
sketch5.addConstraint(Sketcher.Constraint("Tangent", 33, 2, 34, 2))
sketch5.addConstraint(Sketcher.Constraint("Tangent", 34, 1, 35, 1))
sketch5.addConstraint(Sketcher.Constraint("Coincident", 35, 2, 28, 1))
sketch5.addConstraint(Sketcher.Constraint("Horizontal", 0))
sketch5.addConstraint(Sketcher.Constraint("Vertical", 1))
sketch5.addConstraint(Sketcher.Constraint("Horizontal", 2))
sketch5.addConstraint(Sketcher.Constraint("Vertical", 4))
sketch5.addConstraint(Sketcher.Constraint("Horizontal", 6))
sketch5.addConstraint(Sketcher.Constraint("Vertical", 7))
sketch5.addConstraint(Sketcher.Constraint("Horizontal", 8))
sketch5.addConstraint(Sketcher.Constraint("Vertical", 10))
sketch5.addConstraint(Sketcher.Constraint("Vertical", 12))
sketch5.addConstraint(Sketcher.Constraint("Horizontal", 13))
sketch5.addConstraint(Sketcher.Constraint("Vertical", 14))
sketch5.addConstraint(Sketcher.Constraint("Horizontal", 15))
sketch5.addConstraint(Sketcher.Constraint("Horizontal", 16))
sketch5.addConstraint(Sketcher.Constraint("Vertical", 18))
sketch5.addConstraint(Sketcher.Constraint("Horizontal", 19))
sketch5.addConstraint(Sketcher.Constraint("Vertical", 20))
sketch5.addConstraint(Sketcher.Constraint("Horizontal", 22))
sketch5.addConstraint(Sketcher.Constraint("Vertical", 23))
sketch5.addConstraint(Sketcher.Constraint("Vertical", 24))
sketch5.addConstraint(Sketcher.Constraint("Horizontal", 25))
sketch5.addConstraint(Sketcher.Constraint("Vertical", 26))
sketch5.addConstraint(Sketcher.Constraint("Horizontal", 27))
sketch5.addConstraint(Sketcher.Constraint("Horizontal", 28))
sketch5.addConstraint(Sketcher.Constraint("Vertical", 29))
sketch5.addConstraint(Sketcher.Constraint("Horizontal", 31))
sketch5.addConstraint(Sketcher.Constraint("Vertical", 32))
sketch5.addConstraint(Sketcher.Constraint("Horizontal", 33))
sketch5.addConstraint(Sketcher.Constraint("Vertical", 35))
sketch5.addConstraint(Sketcher.Constraint("Equal", 3, 5))
sketch5.addConstraint(Sketcher.Constraint("Equal", 5, 9))
sketch5.addConstraint(Sketcher.Constraint("Equal", 9, 11))
sketch5.addConstraint(Sketcher.Constraint("Equal", 11, 17))
sketch5.addConstraint(Sketcher.Constraint("Equal", 17, 21))
sketch5.addConstraint(Sketcher.Constraint("Equal", 21, 30))
sketch5.addConstraint(Sketcher.Constraint("Equal", 30, 34))
sketch5.addConstraint(Sketcher.Constraint("Symmetric", 9, 3, 17, 3, -1, 1))
sketch5.addConstraint(Sketcher.Constraint("Symmetric", 5, 3, 21, 3, -1, 1))
sketch5.addConstraint(Sketcher.Constraint("Symmetric", 11, 3, 30, 3, -1, 1))
sketch5.addConstraint(Sketcher.Constraint("Symmetric", 3, 3, 34, 3, -1, 1))
sketch5.addConstraint(Sketcher.Constraint("Horizontal", 11, 3, 17, 3))
sketch5.addConstraint(Sketcher.Constraint("Horizontal", 3, 3, 21, 3))
sketch5.addConstraint(Sketcher.Constraint("Horizontal", 2, 2, 12, 2))
sketch5.addConstraint(Sketcher.Constraint("Horizontal", 11, 2, 14, 2))
sketch5.addConstraint(Sketcher.Constraint("Vertical", 18, 2, 24, 2))
sketch5.addConstraint(Sketcher.Constraint("Vertical", 20, 2, 25, 2))
sketch5.addConstraint(Sketcher.Constraint("Equal", 28, 1))
sketch5.addConstraint(Sketcher.Constraint("Radius", 3, Q("3 mm")))
sketch5.addConstraint(Sketcher.Constraint("DistanceX", 16, 2, 16, 1, Q("12 mm")))
sketch5.addConstraint(Sketcher.Constraint("DistanceY", 4, 2, 4, 1, Q("68 mm")))
sketch5.addConstraint(Sketcher.Constraint("DistanceY", 10, 1, 10, 2, Q("73 mm")))
sketch5.addConstraint(Sketcher.Constraint("DistanceY", 20, 1, 20, 2, Q("13 mm")))
sketch5.addConstraint(Sketcher.Constraint("DistanceY", 24, 2, 24, 1, Q("5 mm")))
sketch5.addConstraint(Sketcher.Constraint("DistanceY", 35, 1, 35, 2, Q("22 mm")))
sketch5.addConstraint(Sketcher.Constraint("DistanceX", 0, 2, 0, 1, Q("7.4 mm")))
sketch5.addConstraint(Sketcher.Constraint("DistanceX", 6, 2, 6, 1, Q("24.1 mm")))
sketch5.addConstraint(Sketcher.Constraint("DistanceX", 13, 1, 13, 2, Q("7.2 mm")))
sketch5.addConstraint(Sketcher.Constraint("DistanceX", 31, 1, 31, 2, Q("4.8 mm")))
sketch5.addConstraint(Sketcher.Constraint("DistanceX", -1, 1, 3, 3, Q("24 mm")))
sketch5.addConstraint(Sketcher.Constraint("DistanceY", -1, 1, 24, 2, Q("2 mm")))
sketch5.addConstraint(Sketcher.Constraint("DistanceX", 12, 2, -1, 1, Q("1.3 mm")))
pad5 = body.newObject("PartDesign::Pad", "Pad004")
pad5.Profile = sketch5
pad5.Length = 20.5

# Sketch on XY plane
sketch6 = body.newObject("Sketcher::SketchObject", "Sketch005")
sketch6.AttachmentSupport = (doc.getObject("XY_Plane"), [""])
sketch6.MapMode = "FlatFace"
sketch6.AttachmentOffset = App.Placement(Vector(0, 0, -1.4), App.Rotation())
sketch6.addGeometry(Part.Circle(Vector(-23, 31.5, 0), Vector(0, 0, 1), 0.75), False)
sketch6.addGeometry(Part.Circle(Vector(23, 31.5, 0), Vector(0, 0, 1), 0.75), False)
sketch6.addGeometry(Part.Circle(Vector(23, -34.5, 0), Vector(0, 0, 1), 0.75), False)
sketch6.addGeometry(Part.Circle(Vector(-23, -34.5, 0), Vector(0, 0, 1), 0.75), False)
sketch6.addConstraint(Sketcher.Constraint("Equal", 0, 1))
sketch6.addConstraint(Sketcher.Constraint("Equal", 1, 2))
sketch6.addConstraint(Sketcher.Constraint("Equal", 2, 3))
sketch6.addConstraint(Sketcher.Constraint("Symmetric", 0, 3, 1, 3, -2))
sketch6.addConstraint(Sketcher.Constraint("Symmetric", 2, 3, 3, 3, -2))
sketch6.addConstraint(Sketcher.Constraint("Vertical", 1, 3, 2, 3))
sketch6.addConstraint(Sketcher.Constraint("Diameter", 0, Q("1.5 mm")))
sketch6.addConstraint(Sketcher.Constraint("DistanceX", 0, 3, -1, 1, Q("23 mm")))
sketch6.addConstraint(Sketcher.Constraint("DistanceY", 2, 3, 1, 3, Q("66 mm")))
sketch6.addConstraint(Sketcher.Constraint("DistanceY", -1, 1, 0, 3, Q("31.5 mm")))
pocket1 = body.newObject("PartDesign::Pocket", "Pocket")
pocket1.Profile = sketch6
pocket1.Length = 1.4
pocket1.Reversed = True

doc.recompute()
